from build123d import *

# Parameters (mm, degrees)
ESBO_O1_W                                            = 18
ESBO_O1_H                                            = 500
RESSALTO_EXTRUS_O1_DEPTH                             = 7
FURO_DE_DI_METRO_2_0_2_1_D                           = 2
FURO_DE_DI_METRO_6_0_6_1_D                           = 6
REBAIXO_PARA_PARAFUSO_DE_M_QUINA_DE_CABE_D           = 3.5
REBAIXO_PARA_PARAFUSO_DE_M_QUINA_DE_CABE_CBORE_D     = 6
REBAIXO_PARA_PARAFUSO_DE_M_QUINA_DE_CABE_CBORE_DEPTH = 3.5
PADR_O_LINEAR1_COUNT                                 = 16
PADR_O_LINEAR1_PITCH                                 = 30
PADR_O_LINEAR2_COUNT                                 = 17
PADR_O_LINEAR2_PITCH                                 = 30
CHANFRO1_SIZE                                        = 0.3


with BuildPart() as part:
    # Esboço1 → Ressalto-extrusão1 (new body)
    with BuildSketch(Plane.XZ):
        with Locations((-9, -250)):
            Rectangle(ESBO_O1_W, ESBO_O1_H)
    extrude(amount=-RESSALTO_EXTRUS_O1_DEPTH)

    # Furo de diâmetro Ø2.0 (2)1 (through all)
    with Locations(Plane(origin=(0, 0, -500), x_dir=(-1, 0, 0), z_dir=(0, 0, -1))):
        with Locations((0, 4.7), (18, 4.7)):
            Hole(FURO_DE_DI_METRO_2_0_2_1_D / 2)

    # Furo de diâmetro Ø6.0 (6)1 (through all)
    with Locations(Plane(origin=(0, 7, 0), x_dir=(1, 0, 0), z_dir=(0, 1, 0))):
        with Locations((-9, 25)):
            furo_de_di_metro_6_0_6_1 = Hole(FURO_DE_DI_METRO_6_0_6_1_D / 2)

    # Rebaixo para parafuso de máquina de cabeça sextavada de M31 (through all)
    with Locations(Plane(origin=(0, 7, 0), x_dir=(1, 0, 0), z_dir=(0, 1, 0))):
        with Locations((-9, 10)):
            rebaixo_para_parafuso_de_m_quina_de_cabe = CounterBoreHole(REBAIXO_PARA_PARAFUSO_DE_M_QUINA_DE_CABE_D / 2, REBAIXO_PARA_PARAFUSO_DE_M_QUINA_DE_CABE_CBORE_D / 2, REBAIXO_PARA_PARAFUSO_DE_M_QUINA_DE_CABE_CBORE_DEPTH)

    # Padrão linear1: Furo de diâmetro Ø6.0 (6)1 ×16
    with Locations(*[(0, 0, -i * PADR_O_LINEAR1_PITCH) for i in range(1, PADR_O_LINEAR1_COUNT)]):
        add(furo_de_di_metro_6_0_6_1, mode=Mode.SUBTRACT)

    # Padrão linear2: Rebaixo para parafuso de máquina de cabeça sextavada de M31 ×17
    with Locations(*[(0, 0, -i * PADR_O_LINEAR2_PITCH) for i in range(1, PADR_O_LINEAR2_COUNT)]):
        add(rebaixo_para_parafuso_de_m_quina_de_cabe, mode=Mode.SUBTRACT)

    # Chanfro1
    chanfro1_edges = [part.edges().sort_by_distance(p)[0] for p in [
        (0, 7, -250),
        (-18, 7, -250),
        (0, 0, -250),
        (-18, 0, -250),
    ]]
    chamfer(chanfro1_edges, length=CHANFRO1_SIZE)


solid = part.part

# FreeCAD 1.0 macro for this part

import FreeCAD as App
import Part
import Sketcher
from FreeCAD import Vector


def edges_at(feature, points):
    """Names of the edges that pass closest to the given points."""
    edges = feature.Shape.Edges
    near = lambda p: min(range(len(edges)), key=lambda i: edges[i].distToShape(Part.Vertex(*p))[0])
    return sorted({f"Edge{near(p) + 1}" for p in points})


def add_polygon(sketch, points):
    """Adds a closed chain of lines whose ends are joined by coincident constraints."""
    first, n = sketch.GeometryCount, len(points)
    for a, b in zip(points, points[1:] + points[:1]):
        sketch.addGeometry(Part.LineSegment(App.Vector(*a, 0), App.Vector(*b, 0)), False)
    for i in range(n):
        sketch.addConstraint(Sketcher.Constraint("Coincident", first + i, 2, first + (i + 1) % n, 1))

doc = App.newDocument("Part")
body = doc.addObject("PartDesign::Body", "Body")

# Sketch on XZ plane
sketch1 = doc.addObject("Sketcher::SketchObject", "Sketch")
body.addObject(sketch1)
sketch1.AttachmentSupport = (doc.XZ_Plane, [""])
sketch1.MapMode = "FlatFace"
add_polygon(sketch1, [(-18, 0), (-18, -500), (0, -500), (0, 0)])  # lines 0-3
sketch1.addConstraint([
    Sketcher.Constraint("Vertical", 0),
    Sketcher.Constraint("Horizontal", 1),
    Sketcher.Constraint("Vertical", 2),
    Sketcher.Constraint("Horizontal", 3),
    Sketcher.Constraint("Coincident", 2, 2, -1, 1),
    Sketcher.Constraint("DistanceX", 1, 1, 1, 2, 18.0),
    Sketcher.Constraint("DistanceY", 0, 2, 0, 1, 500.0),
])
pad1 = doc.addObject("PartDesign::Pad", "Pad")
body.addObject(pad1)
pad1.Profile = sketch1
pad1.Length = 7
pad1.Reversed = True

# Sketch on XY plane
sketch2 = doc.addObject("Sketcher::SketchObject", "Sketch001")
body.addObject(sketch2)
sketch2.AttachmentSupport = (doc.XY_Plane, [""])
sketch2.MapMode = "FlatFace"
sketch2.AttachmentOffset = App.Placement(Vector(0, 0, -500), App.Rotation())
sketch2.addGeometry([
    Part.Circle(Vector(0, 4.7, 0), Vector(0, 0, 1), 1),
    Part.Circle(Vector(-18, 4.7, 0), Vector(0, 0, 1), 1),
], False)
sketch2.addConstraint([
    Sketcher.Constraint("Equal", 0, 1),
    Sketcher.Constraint("PointOnObject", 0, 3, -2),
    Sketcher.Constraint("Horizontal", 0, 3, 1, 3),
    Sketcher.Constraint("Diameter", 0, 2.0),
    Sketcher.Constraint("DistanceX", 1, 3, -1, 1, 18.0),
    Sketcher.Constraint("DistanceY", -1, 1, 0, 3, 4.7),
])
doc.recompute()
hole = doc.addObject("PartDesign::Hole", "Hole")
body.addObject(hole)
hole.Profile = sketch2
hole.ThreadType = "None"
hole.Diameter = 2
hole.DepthType = "ThroughAll"
hole.Reversed = True

# Sketch on XZ plane
sketch3 = doc.addObject("Sketcher::SketchObject", "Sketch002")
body.addObject(sketch3)
sketch3.AttachmentSupport = (doc.XZ_Plane, [""])
sketch3.MapMode = "FlatFace"
sketch3.AttachmentOffset = App.Placement(Vector(0, 0, -7), App.Rotation())
sketch3.addGeometry(Part.Circle(Vector(-9, -25, 0), Vector(0, 0, 1), 3), False)
sketch3.addConstraint([
    Sketcher.Constraint("Diameter", 0, 6.0),
    Sketcher.Constraint("DistanceX", 0, 3, -1, 1, 9.0),
    Sketcher.Constraint("DistanceY", 0, 3, -1, 1, 25.0),
])
doc.recompute()
hole2 = doc.addObject("PartDesign::Hole", "Hole001")
body.addObject(hole2)
hole2.Profile = sketch3
hole2.ThreadType = "None"
hole2.Diameter = 6
hole2.DepthType = "ThroughAll"
hole2.Reversed = True

# Sketch on XZ plane
sketch4 = doc.addObject("Sketcher::SketchObject", "Sketch003")
body.addObject(sketch4)
sketch4.AttachmentSupport = (doc.XZ_Plane, [""])
sketch4.MapMode = "FlatFace"
sketch4.AttachmentOffset = App.Placement(Vector(0, 0, -7), App.Rotation())
sketch4.addGeometry(Part.Circle(Vector(-9, -10, 0), Vector(0, 0, 1), 1.75), False)
sketch4.addConstraint([
    Sketcher.Constraint("Diameter", 0, 3.5),
    Sketcher.Constraint("DistanceX", 0, 3, -1, 1, 9.0),
    Sketcher.Constraint("DistanceY", 0, 3, -1, 1, 10.0),
])
doc.recompute()
hole3 = doc.addObject("PartDesign::Hole", "Hole002")
body.addObject(hole3)
hole3.Profile = sketch4
hole3.ThreadType = "None"
hole3.Diameter = 3.5
hole3.DepthType = "ThroughAll"
hole3.HoleCutType = "Counterbore"
hole3.HoleCutDiameter = 6
hole3.HoleCutDepth = 3.5
hole3.Reversed = True
doc.recompute()

linearpattern = doc.addObject("PartDesign::LinearPattern", "LinearPattern")
body.addObject(linearpattern)
linearpattern.Originals = [hole2]
linearpattern.Direction = (doc.Z_Axis, [""])
linearpattern.Mode = "offset"
linearpattern.Offset = 30
linearpattern.Occurrences = 16
linearpattern.Reversed = True
body.Tip = linearpattern
doc.recompute()

linearpattern2 = doc.addObject("PartDesign::LinearPattern", "LinearPattern001")
body.addObject(linearpattern2)
linearpattern2.Originals = [hole3]
linearpattern2.Direction = (doc.Z_Axis, [""])
linearpattern2.Mode = "offset"
linearpattern2.Offset = 30
linearpattern2.Occurrences = 17
linearpattern2.Reversed = True
body.Tip = linearpattern2
doc.recompute()

chamfer = doc.addObject("PartDesign::Chamfer", "Chamfer")
body.addObject(chamfer)
chamfer.Base = (linearpattern2, edges_at(linearpattern2, [
    (0, 7, -250),
    (-18, 7, -250),
    (0, 0, -250),
    (-18, 0, -250),
]))
chamfer.Size = 0.3

doc.recompute()
